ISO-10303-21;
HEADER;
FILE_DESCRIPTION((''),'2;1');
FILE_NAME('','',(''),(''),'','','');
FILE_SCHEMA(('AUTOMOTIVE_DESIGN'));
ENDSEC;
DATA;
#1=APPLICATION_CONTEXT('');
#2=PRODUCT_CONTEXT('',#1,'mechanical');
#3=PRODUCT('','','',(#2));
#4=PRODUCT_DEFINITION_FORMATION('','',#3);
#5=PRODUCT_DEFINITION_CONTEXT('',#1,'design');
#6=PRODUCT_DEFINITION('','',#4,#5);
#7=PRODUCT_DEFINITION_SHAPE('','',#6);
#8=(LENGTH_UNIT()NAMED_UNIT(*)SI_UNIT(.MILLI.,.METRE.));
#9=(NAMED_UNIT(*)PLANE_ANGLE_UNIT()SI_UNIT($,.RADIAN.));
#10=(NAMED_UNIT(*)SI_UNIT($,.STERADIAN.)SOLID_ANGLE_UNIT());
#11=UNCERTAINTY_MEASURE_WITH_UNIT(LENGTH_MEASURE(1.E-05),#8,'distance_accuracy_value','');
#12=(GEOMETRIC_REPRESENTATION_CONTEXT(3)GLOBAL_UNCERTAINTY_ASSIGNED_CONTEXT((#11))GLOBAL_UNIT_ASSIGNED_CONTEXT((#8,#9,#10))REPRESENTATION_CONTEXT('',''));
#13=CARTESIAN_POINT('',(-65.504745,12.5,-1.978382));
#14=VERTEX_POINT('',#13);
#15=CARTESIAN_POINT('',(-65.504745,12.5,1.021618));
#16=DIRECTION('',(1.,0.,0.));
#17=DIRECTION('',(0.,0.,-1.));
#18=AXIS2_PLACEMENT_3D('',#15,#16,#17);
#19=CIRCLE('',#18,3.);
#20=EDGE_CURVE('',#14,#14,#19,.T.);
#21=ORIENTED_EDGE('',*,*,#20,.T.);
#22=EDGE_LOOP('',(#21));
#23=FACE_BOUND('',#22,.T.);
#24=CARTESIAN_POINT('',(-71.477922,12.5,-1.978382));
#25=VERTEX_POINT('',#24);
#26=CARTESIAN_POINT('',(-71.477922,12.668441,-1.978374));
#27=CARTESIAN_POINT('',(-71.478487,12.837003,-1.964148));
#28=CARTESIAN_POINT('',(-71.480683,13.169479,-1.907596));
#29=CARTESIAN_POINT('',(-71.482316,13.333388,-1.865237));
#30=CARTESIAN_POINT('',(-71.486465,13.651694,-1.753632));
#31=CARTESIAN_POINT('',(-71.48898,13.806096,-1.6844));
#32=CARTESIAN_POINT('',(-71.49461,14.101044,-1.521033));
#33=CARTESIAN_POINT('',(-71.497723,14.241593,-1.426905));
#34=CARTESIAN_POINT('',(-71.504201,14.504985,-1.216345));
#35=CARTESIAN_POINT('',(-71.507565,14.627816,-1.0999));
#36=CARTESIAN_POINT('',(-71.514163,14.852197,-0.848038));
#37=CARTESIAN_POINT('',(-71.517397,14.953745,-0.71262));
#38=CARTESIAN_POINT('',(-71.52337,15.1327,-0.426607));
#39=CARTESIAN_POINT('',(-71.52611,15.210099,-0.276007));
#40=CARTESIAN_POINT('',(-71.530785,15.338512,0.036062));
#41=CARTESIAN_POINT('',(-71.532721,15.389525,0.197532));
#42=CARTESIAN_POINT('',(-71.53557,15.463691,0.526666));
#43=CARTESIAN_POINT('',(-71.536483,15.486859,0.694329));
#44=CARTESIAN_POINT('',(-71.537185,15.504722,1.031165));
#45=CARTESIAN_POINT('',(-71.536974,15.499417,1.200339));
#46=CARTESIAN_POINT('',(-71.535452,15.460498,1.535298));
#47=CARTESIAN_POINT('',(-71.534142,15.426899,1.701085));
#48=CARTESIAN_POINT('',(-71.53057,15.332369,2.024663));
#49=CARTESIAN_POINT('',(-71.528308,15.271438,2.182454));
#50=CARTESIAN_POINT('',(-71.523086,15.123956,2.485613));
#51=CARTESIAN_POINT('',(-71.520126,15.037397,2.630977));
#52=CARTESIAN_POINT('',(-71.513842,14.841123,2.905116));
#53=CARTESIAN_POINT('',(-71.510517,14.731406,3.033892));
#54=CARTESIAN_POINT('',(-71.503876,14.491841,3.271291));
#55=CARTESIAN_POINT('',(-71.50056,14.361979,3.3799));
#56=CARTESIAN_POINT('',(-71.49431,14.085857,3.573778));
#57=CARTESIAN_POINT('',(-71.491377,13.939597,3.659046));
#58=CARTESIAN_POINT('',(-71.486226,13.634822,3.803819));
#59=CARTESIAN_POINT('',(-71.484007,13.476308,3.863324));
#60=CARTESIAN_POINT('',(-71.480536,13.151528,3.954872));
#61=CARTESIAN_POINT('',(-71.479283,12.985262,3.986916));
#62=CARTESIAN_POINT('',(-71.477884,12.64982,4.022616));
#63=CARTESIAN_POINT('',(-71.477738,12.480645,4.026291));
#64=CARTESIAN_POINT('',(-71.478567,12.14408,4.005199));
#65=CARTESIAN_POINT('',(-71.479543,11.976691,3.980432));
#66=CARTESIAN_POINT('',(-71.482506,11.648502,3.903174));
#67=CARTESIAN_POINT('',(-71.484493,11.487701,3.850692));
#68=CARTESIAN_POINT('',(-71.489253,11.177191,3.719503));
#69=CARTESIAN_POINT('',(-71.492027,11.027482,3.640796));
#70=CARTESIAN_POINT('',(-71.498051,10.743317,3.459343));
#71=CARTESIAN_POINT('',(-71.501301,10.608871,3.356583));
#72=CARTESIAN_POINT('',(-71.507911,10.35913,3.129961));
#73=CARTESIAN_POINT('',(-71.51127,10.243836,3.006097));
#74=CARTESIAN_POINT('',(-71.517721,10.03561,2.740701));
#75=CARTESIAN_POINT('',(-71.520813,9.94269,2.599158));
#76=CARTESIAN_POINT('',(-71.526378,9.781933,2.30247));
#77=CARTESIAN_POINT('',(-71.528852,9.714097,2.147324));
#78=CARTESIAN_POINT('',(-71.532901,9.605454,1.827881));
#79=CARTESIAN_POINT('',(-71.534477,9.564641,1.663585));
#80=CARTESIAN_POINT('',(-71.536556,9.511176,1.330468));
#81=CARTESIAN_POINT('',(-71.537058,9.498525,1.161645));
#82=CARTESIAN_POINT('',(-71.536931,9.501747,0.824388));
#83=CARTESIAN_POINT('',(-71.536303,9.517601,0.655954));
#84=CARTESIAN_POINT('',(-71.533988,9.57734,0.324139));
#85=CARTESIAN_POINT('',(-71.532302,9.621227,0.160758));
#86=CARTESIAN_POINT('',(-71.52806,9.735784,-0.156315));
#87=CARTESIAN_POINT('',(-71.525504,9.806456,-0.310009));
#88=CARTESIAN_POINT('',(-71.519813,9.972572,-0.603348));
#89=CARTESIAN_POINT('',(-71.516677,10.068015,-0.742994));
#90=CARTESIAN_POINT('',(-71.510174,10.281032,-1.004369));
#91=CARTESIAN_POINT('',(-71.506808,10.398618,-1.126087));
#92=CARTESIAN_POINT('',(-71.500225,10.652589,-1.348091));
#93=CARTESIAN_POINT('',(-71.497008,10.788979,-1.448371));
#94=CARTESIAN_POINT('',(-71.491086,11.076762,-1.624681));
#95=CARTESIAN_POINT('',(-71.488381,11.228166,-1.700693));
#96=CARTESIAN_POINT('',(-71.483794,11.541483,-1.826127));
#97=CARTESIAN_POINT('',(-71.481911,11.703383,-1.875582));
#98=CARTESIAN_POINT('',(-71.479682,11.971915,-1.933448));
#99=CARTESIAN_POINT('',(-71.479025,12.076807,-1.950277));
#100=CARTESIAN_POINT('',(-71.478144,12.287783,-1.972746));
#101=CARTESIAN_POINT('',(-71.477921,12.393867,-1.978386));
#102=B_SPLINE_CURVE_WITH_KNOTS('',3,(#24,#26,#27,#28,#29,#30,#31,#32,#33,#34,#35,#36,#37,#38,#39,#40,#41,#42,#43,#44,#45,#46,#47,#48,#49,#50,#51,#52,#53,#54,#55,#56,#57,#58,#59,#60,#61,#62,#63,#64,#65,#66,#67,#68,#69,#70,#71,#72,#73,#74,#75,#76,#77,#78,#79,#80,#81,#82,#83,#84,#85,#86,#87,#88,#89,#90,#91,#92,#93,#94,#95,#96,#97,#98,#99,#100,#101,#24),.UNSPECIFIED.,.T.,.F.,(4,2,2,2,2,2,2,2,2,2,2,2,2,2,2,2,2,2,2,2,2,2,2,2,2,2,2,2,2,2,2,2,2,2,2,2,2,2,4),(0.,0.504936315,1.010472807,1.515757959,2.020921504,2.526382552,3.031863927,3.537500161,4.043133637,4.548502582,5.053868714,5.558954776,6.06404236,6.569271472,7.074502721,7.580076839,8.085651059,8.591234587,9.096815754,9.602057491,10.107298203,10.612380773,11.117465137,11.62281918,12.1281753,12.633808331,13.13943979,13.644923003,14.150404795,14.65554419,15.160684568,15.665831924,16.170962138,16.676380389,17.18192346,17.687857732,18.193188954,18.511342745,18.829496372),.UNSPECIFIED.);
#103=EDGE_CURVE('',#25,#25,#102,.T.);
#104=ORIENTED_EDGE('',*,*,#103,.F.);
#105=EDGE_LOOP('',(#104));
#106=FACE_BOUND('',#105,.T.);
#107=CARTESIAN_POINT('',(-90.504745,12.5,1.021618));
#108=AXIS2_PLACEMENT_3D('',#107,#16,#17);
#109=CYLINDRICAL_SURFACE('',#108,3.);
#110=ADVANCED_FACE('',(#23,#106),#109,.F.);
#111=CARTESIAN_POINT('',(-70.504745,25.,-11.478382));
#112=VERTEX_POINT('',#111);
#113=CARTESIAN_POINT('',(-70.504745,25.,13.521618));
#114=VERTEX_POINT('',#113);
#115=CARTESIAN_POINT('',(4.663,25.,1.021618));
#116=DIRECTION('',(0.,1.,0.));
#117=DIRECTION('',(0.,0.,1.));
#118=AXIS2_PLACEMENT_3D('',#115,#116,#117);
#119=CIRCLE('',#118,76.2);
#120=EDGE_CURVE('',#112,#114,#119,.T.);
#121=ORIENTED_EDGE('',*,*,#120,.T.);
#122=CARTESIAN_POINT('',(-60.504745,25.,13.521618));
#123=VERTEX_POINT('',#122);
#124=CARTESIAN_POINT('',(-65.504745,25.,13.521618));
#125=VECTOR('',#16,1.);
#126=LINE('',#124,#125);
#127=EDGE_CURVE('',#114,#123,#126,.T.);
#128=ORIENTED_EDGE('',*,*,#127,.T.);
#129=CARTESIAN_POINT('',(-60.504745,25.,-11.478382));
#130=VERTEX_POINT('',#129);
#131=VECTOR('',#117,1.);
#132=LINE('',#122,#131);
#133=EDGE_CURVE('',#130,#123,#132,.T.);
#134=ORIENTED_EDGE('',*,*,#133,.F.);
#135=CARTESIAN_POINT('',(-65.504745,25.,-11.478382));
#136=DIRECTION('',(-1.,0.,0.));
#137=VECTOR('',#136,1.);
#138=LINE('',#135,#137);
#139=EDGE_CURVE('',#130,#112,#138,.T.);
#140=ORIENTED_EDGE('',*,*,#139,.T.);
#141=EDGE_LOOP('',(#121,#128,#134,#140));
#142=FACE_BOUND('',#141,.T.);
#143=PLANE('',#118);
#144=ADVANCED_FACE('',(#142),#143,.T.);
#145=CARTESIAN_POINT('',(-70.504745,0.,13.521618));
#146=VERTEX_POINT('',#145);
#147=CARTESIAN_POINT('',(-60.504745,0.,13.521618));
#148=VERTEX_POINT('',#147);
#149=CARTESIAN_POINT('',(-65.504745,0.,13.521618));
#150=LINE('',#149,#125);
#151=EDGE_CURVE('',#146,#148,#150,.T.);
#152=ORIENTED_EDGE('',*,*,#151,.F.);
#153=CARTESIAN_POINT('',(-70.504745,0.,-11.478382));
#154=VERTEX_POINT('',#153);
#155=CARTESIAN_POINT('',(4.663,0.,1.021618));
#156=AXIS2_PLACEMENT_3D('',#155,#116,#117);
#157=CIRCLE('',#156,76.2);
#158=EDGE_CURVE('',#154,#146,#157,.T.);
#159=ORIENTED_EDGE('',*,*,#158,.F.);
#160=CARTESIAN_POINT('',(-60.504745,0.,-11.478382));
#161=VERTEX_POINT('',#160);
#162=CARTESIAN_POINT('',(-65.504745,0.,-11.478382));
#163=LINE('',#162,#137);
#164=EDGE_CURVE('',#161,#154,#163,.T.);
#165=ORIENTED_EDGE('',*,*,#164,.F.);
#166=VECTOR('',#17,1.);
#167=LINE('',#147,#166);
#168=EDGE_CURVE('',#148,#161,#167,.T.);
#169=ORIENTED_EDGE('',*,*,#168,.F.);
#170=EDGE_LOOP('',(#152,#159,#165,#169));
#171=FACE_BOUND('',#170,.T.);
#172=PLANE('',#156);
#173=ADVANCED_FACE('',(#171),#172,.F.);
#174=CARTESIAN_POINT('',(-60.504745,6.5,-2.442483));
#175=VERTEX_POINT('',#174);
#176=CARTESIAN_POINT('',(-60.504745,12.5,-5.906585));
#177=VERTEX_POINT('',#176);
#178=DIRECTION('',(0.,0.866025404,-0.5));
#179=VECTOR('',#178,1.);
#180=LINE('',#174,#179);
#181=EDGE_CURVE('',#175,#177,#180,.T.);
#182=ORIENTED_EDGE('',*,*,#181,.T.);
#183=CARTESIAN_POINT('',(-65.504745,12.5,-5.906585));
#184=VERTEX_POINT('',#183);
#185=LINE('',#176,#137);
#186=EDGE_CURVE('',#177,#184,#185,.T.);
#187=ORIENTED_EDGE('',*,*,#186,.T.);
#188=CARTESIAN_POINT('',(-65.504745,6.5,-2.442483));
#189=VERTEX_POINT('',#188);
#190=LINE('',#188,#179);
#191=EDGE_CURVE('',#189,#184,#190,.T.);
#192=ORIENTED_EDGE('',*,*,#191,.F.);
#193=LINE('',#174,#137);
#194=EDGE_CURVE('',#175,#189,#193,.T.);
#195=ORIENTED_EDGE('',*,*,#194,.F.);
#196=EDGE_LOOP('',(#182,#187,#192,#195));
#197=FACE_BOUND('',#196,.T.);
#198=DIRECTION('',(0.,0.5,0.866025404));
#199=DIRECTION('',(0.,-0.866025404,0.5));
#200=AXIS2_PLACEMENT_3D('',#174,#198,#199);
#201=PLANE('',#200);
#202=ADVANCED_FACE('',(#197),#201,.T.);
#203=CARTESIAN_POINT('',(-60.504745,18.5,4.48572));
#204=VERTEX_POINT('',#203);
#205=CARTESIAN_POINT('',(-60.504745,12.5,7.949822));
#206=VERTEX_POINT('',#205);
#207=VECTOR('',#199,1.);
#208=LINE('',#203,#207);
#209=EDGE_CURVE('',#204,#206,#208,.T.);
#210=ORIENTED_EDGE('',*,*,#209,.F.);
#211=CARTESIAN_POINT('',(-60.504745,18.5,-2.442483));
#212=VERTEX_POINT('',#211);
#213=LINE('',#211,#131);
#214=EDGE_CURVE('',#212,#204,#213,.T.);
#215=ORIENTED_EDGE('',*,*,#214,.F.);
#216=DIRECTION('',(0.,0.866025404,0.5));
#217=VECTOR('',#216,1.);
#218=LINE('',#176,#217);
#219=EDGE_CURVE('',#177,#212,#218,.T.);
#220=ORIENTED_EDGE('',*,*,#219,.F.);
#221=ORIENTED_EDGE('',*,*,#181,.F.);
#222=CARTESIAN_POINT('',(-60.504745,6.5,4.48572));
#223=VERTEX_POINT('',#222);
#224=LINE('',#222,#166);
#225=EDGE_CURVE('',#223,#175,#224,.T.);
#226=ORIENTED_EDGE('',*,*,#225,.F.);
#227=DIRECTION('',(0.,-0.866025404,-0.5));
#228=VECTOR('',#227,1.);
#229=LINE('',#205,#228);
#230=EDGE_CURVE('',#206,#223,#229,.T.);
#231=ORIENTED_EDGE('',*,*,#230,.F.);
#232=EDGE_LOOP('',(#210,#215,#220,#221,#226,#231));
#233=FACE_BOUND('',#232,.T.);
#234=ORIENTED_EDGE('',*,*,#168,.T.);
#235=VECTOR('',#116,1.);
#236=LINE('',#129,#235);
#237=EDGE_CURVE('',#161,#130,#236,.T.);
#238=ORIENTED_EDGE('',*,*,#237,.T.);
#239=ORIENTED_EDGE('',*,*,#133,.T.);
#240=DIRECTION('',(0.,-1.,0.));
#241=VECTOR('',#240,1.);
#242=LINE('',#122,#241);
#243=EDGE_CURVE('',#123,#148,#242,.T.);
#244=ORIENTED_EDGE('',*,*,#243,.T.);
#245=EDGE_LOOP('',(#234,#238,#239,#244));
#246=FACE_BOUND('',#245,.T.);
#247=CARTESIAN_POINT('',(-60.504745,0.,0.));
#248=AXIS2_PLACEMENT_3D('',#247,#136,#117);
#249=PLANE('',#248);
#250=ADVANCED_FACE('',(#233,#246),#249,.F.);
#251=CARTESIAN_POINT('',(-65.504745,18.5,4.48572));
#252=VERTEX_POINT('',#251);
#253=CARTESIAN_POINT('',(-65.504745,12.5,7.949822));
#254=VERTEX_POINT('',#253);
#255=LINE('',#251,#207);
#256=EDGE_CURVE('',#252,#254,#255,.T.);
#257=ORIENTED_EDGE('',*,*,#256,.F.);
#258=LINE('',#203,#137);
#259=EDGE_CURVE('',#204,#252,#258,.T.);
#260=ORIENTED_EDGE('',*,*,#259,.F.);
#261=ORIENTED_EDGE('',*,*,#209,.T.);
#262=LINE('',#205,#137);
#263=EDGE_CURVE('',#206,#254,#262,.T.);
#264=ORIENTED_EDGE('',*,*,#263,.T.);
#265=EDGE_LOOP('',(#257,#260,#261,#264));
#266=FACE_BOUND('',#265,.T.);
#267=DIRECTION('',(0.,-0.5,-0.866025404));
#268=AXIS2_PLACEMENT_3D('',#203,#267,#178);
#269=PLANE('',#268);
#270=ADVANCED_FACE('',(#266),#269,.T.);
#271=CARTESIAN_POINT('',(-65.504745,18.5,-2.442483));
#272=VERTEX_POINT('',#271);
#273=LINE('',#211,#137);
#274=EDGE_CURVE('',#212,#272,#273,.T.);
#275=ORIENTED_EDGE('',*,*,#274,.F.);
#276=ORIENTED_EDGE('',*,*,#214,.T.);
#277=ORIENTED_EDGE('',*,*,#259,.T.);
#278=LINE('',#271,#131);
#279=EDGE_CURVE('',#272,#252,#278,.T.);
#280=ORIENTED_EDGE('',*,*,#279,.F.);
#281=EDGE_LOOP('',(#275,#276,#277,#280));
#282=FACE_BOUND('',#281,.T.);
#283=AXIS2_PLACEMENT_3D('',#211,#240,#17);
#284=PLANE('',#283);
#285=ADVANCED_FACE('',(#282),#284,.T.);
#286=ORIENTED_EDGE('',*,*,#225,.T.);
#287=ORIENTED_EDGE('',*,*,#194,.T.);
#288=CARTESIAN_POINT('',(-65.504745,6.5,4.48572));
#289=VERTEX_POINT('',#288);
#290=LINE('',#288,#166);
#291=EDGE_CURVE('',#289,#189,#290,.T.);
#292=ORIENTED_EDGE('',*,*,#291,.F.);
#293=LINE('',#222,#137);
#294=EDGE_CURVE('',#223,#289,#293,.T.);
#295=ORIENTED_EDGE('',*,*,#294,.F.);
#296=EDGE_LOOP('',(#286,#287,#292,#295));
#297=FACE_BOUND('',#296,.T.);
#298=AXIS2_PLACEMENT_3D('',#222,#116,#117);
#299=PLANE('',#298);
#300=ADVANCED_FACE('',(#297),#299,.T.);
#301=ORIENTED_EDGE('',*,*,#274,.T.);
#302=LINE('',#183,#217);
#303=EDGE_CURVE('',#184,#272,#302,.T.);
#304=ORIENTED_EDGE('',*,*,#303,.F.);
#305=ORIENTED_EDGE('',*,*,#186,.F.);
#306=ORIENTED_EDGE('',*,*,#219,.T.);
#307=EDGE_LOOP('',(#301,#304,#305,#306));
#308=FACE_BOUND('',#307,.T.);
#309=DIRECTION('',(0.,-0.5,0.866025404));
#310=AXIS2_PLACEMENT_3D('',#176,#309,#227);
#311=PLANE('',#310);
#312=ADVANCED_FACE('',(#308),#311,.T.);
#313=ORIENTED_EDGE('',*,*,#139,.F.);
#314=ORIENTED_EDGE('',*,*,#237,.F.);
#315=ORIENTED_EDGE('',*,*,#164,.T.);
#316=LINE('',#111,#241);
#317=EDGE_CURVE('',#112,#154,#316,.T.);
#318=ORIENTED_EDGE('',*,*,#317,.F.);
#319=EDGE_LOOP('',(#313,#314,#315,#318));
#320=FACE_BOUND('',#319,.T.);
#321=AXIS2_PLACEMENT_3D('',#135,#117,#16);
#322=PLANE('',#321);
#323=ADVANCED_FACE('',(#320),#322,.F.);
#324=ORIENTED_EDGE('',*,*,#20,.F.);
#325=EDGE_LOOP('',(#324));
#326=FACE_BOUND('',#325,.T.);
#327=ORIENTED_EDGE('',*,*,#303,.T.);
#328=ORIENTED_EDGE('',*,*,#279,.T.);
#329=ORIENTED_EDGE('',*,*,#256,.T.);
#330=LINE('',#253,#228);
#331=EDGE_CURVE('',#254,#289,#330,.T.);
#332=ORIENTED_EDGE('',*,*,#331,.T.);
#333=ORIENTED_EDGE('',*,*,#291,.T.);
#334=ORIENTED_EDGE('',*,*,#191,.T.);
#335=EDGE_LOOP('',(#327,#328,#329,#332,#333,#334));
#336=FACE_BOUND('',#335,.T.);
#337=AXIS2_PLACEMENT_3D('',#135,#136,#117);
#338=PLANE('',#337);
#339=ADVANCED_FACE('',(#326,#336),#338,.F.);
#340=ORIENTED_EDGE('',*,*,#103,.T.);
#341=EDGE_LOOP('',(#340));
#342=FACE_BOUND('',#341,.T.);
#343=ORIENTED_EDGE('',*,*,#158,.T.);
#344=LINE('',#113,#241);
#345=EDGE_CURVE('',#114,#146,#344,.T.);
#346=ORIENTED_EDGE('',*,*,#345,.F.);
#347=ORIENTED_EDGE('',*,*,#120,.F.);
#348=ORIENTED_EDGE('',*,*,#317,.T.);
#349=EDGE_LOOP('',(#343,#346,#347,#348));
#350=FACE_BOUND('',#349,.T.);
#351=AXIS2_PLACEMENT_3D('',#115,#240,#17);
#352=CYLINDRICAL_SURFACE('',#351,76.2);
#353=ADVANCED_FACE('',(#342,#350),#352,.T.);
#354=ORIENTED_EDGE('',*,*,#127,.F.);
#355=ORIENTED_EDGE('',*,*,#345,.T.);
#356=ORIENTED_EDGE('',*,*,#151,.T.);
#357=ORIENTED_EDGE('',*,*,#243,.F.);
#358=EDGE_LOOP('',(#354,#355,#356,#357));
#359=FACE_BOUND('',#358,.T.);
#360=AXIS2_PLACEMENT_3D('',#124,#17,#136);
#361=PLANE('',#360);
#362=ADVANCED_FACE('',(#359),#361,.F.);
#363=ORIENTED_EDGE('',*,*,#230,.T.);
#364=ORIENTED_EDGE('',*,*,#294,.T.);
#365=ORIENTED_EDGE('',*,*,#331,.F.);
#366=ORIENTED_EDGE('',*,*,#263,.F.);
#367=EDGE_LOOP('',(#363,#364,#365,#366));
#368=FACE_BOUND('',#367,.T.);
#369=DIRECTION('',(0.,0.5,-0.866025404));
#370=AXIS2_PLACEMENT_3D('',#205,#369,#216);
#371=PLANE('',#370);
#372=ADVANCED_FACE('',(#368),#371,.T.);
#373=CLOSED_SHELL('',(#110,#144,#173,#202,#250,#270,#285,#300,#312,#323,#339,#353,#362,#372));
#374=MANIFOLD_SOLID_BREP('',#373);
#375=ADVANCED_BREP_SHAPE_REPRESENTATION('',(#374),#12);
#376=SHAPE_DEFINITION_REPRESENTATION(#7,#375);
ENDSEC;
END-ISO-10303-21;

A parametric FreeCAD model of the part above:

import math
import FreeCAD as App
import Part
import Sketcher

V = App.Vector
Q = App.Units.Quantity


def add_polygon(sketch, points):
    """Adds a closed chain of lines whose ends are joined by coincident constraints."""
    first, n = sketch.GeometryCount, len(points)
    for a, b in zip(points, points[1:] + points[:1]):
        sketch.addGeometry(Part.LineSegment(App.Vector(*a, 0), App.Vector(*b, 0)), False)
    for i in range(n):
        sketch.addConstraint(Sketcher.Constraint("Coincident", first + i, 2, first + (i + 1) % n, 1))

doc = App.newDocument("Part")
body = doc.addObject("PartDesign::Body", "Body")

sketch1 = body.newObject("Sketcher::SketchObject", "Sketch")
sketch1.AttachmentSupport = (doc.getObject("XZ_Plane"), [""])
sketch1.MapMode = "FlatFace"
sketch1.addGeometry(Part.LineSegment(V(-66, 14, 0), V(-66, -11, 0)), False)
sketch1.addGeometry(Part.LineSegment(V(-66, -11, 0), V(-71, -11, 0)), False)
sketch1.addGeometry(Part.ArcOfCircle(Part.Circle(V(5, 1, 0), V(0, 0, 1), 76), math.radians(170.56), math.radians(189.44)), False)
sketch1.addGeometry(Part.LineSegment(V(-71, 14, 0), V(-66, 14, 0)), False)
sketch1.addConstraint(Sketcher.Constraint("Coincident", 0, 2, 1, 1))
sketch1.addConstraint(Sketcher.Constraint("Coincident", 1, 2, 2, 2))
sketch1.addConstraint(Sketcher.Constraint("Coincident", 2, 1, 3, 1))
sketch1.addConstraint(Sketcher.Constraint("Coincident", 3, 2, 0, 1))
sketch1.addConstraint(Sketcher.Constraint("Vertical", 0))
sketch1.addConstraint(Sketcher.Constraint("Horizontal", 1))
sketch1.addConstraint(Sketcher.Constraint("Horizontal", 3))
sketch1.addConstraint(Sketcher.Constraint("Vertical", 1, 2, 2, 1))
sketch1.addConstraint(Sketcher.Constraint("Radius", 2, 76.2))
sketch1.addConstraint(Sketcher.Constraint("DistanceX", 1, 2, 1, 1, 5.0))
sketch1.addConstraint(Sketcher.Constraint("DistanceY", 0, 2, 0, 1, 25.0))
sketch1.addConstraint(Sketcher.Constraint("DistanceX", -1, 1, 2, 3, 4.663))
sketch1.addConstraint(Sketcher.Constraint("DistanceY", -1, 1, 2, 3, 1.021618))
pad1 = body.newObject("PartDesign::Pad", "Pad")
pad1.Profile = sketch1
pad1.Length = 25
pad1.Reversed = True

sketch2 = body.newObject("Sketcher::SketchObject", "Sketch001")
sketch2.AttachmentSupport = (doc.getObject("YZ_Plane"), [""])
sketch2.MapMode = "FlatFace"
sketch2.AttachmentOffset = App.Placement(V(0, 0, -65.504745), App.Rotation())
sketch2.addGeometry(Part.Circle(V(12.5, 1, 0), V(0, 0, 1), 3), False)
sketch2.addConstraint(Sketcher.Constraint("Diameter", 0, 6.0))
sketch2.addConstraint(Sketcher.Constraint("DistanceX", -1, 1, 0, 3, 12.5))
sketch2.addConstraint(Sketcher.Constraint("DistanceY", -1, 1, 0, 3, 1.021618))
pocket1 = body.newObject("PartDesign::Pocket", "Pocket")
pocket1.Profile = sketch2
pocket1.Length = 25

sketch3 = body.newObject("Sketcher::SketchObject", "Sketch002")
sketch3.AttachmentSupport = (doc.getObject("YZ_Plane"), [""])
sketch3.MapMode = "FlatFace"
sketch3.AttachmentOffset = App.Placement(V(0, 0, -65.504745), App.Rotation())
add_polygon(sketch3, [(25, 14), (0, 14), (0, -11), (25, -11)])
add_polygon(sketch3, [(18, -2), (12, -6), (6, -2), (6, 4), (12, 8), (18, 4)])
sketch3.addConstraint(Sketcher.Constraint("Horizontal", 0))
sketch3.addConstraint(Sketcher.Constraint("Vertical", 1))
sketch3.addConstraint(Sketcher.Constraint("Horizontal", 2))
sketch3.addConstraint(Sketcher.Constraint("Vertical", 3))
sketch3.addConstraint(Sketcher.Constraint("Vertical", 6))
sketch3.addConstraint(Sketcher.Constraint("Vertical", 9))
sketch3.addConstraint(Sketcher.Constraint("PointOnObject", 0, 2, -2))
sketch3.addConstraint(Sketcher.Constraint("Parallel", 4, 7))
sketch3.addConstraint(Sketcher.Constraint("Parallel", 5, 8))
sketch3.addConstraint(Sketcher.Constraint("Horizontal", 6, 2, 8, 2))
sketch3.addConstraint(Sketcher.Constraint("Horizontal", 5, 2, 9, 2))
sketch3.addConstraint(Sketcher.Constraint("Vertical", 4, 2, 7, 2))
sketch3.addConstraint(Sketcher.Constraint("Equal", 2, 1))
sketch3.addConstraint(Sketcher.Constraint("DistanceX", 0, 2, 0, 1, 25.0))
sketch3.addConstraint(Sketcher.Constraint("Angle", 4, Q("-150 deg")))
sketch3.addConstraint(Sketcher.Constraint("DistanceX", 5, 2, 4, 2, 6.0))
sketch3.addConstraint(Sketcher.Constraint("DistanceX", -1, 1, 4, 2, 12.5))
sketch3.addConstraint(Sketcher.Constraint("DistanceY", 1, 2, 5, 2, 9.035898))
sketch3.addConstraint(Sketcher.Constraint("DistanceY", 6, 2, 0, 2, 9.035898))
sketch3.addConstraint(Sketcher.Constraint("DistanceY", -1, 1, 0, 2, 13.521618))
pad2 = body.newObject("PartDesign::Pad", "Pad001")
pad2.Profile = sketch3
pad2.Length = 5

doc.recompute()
